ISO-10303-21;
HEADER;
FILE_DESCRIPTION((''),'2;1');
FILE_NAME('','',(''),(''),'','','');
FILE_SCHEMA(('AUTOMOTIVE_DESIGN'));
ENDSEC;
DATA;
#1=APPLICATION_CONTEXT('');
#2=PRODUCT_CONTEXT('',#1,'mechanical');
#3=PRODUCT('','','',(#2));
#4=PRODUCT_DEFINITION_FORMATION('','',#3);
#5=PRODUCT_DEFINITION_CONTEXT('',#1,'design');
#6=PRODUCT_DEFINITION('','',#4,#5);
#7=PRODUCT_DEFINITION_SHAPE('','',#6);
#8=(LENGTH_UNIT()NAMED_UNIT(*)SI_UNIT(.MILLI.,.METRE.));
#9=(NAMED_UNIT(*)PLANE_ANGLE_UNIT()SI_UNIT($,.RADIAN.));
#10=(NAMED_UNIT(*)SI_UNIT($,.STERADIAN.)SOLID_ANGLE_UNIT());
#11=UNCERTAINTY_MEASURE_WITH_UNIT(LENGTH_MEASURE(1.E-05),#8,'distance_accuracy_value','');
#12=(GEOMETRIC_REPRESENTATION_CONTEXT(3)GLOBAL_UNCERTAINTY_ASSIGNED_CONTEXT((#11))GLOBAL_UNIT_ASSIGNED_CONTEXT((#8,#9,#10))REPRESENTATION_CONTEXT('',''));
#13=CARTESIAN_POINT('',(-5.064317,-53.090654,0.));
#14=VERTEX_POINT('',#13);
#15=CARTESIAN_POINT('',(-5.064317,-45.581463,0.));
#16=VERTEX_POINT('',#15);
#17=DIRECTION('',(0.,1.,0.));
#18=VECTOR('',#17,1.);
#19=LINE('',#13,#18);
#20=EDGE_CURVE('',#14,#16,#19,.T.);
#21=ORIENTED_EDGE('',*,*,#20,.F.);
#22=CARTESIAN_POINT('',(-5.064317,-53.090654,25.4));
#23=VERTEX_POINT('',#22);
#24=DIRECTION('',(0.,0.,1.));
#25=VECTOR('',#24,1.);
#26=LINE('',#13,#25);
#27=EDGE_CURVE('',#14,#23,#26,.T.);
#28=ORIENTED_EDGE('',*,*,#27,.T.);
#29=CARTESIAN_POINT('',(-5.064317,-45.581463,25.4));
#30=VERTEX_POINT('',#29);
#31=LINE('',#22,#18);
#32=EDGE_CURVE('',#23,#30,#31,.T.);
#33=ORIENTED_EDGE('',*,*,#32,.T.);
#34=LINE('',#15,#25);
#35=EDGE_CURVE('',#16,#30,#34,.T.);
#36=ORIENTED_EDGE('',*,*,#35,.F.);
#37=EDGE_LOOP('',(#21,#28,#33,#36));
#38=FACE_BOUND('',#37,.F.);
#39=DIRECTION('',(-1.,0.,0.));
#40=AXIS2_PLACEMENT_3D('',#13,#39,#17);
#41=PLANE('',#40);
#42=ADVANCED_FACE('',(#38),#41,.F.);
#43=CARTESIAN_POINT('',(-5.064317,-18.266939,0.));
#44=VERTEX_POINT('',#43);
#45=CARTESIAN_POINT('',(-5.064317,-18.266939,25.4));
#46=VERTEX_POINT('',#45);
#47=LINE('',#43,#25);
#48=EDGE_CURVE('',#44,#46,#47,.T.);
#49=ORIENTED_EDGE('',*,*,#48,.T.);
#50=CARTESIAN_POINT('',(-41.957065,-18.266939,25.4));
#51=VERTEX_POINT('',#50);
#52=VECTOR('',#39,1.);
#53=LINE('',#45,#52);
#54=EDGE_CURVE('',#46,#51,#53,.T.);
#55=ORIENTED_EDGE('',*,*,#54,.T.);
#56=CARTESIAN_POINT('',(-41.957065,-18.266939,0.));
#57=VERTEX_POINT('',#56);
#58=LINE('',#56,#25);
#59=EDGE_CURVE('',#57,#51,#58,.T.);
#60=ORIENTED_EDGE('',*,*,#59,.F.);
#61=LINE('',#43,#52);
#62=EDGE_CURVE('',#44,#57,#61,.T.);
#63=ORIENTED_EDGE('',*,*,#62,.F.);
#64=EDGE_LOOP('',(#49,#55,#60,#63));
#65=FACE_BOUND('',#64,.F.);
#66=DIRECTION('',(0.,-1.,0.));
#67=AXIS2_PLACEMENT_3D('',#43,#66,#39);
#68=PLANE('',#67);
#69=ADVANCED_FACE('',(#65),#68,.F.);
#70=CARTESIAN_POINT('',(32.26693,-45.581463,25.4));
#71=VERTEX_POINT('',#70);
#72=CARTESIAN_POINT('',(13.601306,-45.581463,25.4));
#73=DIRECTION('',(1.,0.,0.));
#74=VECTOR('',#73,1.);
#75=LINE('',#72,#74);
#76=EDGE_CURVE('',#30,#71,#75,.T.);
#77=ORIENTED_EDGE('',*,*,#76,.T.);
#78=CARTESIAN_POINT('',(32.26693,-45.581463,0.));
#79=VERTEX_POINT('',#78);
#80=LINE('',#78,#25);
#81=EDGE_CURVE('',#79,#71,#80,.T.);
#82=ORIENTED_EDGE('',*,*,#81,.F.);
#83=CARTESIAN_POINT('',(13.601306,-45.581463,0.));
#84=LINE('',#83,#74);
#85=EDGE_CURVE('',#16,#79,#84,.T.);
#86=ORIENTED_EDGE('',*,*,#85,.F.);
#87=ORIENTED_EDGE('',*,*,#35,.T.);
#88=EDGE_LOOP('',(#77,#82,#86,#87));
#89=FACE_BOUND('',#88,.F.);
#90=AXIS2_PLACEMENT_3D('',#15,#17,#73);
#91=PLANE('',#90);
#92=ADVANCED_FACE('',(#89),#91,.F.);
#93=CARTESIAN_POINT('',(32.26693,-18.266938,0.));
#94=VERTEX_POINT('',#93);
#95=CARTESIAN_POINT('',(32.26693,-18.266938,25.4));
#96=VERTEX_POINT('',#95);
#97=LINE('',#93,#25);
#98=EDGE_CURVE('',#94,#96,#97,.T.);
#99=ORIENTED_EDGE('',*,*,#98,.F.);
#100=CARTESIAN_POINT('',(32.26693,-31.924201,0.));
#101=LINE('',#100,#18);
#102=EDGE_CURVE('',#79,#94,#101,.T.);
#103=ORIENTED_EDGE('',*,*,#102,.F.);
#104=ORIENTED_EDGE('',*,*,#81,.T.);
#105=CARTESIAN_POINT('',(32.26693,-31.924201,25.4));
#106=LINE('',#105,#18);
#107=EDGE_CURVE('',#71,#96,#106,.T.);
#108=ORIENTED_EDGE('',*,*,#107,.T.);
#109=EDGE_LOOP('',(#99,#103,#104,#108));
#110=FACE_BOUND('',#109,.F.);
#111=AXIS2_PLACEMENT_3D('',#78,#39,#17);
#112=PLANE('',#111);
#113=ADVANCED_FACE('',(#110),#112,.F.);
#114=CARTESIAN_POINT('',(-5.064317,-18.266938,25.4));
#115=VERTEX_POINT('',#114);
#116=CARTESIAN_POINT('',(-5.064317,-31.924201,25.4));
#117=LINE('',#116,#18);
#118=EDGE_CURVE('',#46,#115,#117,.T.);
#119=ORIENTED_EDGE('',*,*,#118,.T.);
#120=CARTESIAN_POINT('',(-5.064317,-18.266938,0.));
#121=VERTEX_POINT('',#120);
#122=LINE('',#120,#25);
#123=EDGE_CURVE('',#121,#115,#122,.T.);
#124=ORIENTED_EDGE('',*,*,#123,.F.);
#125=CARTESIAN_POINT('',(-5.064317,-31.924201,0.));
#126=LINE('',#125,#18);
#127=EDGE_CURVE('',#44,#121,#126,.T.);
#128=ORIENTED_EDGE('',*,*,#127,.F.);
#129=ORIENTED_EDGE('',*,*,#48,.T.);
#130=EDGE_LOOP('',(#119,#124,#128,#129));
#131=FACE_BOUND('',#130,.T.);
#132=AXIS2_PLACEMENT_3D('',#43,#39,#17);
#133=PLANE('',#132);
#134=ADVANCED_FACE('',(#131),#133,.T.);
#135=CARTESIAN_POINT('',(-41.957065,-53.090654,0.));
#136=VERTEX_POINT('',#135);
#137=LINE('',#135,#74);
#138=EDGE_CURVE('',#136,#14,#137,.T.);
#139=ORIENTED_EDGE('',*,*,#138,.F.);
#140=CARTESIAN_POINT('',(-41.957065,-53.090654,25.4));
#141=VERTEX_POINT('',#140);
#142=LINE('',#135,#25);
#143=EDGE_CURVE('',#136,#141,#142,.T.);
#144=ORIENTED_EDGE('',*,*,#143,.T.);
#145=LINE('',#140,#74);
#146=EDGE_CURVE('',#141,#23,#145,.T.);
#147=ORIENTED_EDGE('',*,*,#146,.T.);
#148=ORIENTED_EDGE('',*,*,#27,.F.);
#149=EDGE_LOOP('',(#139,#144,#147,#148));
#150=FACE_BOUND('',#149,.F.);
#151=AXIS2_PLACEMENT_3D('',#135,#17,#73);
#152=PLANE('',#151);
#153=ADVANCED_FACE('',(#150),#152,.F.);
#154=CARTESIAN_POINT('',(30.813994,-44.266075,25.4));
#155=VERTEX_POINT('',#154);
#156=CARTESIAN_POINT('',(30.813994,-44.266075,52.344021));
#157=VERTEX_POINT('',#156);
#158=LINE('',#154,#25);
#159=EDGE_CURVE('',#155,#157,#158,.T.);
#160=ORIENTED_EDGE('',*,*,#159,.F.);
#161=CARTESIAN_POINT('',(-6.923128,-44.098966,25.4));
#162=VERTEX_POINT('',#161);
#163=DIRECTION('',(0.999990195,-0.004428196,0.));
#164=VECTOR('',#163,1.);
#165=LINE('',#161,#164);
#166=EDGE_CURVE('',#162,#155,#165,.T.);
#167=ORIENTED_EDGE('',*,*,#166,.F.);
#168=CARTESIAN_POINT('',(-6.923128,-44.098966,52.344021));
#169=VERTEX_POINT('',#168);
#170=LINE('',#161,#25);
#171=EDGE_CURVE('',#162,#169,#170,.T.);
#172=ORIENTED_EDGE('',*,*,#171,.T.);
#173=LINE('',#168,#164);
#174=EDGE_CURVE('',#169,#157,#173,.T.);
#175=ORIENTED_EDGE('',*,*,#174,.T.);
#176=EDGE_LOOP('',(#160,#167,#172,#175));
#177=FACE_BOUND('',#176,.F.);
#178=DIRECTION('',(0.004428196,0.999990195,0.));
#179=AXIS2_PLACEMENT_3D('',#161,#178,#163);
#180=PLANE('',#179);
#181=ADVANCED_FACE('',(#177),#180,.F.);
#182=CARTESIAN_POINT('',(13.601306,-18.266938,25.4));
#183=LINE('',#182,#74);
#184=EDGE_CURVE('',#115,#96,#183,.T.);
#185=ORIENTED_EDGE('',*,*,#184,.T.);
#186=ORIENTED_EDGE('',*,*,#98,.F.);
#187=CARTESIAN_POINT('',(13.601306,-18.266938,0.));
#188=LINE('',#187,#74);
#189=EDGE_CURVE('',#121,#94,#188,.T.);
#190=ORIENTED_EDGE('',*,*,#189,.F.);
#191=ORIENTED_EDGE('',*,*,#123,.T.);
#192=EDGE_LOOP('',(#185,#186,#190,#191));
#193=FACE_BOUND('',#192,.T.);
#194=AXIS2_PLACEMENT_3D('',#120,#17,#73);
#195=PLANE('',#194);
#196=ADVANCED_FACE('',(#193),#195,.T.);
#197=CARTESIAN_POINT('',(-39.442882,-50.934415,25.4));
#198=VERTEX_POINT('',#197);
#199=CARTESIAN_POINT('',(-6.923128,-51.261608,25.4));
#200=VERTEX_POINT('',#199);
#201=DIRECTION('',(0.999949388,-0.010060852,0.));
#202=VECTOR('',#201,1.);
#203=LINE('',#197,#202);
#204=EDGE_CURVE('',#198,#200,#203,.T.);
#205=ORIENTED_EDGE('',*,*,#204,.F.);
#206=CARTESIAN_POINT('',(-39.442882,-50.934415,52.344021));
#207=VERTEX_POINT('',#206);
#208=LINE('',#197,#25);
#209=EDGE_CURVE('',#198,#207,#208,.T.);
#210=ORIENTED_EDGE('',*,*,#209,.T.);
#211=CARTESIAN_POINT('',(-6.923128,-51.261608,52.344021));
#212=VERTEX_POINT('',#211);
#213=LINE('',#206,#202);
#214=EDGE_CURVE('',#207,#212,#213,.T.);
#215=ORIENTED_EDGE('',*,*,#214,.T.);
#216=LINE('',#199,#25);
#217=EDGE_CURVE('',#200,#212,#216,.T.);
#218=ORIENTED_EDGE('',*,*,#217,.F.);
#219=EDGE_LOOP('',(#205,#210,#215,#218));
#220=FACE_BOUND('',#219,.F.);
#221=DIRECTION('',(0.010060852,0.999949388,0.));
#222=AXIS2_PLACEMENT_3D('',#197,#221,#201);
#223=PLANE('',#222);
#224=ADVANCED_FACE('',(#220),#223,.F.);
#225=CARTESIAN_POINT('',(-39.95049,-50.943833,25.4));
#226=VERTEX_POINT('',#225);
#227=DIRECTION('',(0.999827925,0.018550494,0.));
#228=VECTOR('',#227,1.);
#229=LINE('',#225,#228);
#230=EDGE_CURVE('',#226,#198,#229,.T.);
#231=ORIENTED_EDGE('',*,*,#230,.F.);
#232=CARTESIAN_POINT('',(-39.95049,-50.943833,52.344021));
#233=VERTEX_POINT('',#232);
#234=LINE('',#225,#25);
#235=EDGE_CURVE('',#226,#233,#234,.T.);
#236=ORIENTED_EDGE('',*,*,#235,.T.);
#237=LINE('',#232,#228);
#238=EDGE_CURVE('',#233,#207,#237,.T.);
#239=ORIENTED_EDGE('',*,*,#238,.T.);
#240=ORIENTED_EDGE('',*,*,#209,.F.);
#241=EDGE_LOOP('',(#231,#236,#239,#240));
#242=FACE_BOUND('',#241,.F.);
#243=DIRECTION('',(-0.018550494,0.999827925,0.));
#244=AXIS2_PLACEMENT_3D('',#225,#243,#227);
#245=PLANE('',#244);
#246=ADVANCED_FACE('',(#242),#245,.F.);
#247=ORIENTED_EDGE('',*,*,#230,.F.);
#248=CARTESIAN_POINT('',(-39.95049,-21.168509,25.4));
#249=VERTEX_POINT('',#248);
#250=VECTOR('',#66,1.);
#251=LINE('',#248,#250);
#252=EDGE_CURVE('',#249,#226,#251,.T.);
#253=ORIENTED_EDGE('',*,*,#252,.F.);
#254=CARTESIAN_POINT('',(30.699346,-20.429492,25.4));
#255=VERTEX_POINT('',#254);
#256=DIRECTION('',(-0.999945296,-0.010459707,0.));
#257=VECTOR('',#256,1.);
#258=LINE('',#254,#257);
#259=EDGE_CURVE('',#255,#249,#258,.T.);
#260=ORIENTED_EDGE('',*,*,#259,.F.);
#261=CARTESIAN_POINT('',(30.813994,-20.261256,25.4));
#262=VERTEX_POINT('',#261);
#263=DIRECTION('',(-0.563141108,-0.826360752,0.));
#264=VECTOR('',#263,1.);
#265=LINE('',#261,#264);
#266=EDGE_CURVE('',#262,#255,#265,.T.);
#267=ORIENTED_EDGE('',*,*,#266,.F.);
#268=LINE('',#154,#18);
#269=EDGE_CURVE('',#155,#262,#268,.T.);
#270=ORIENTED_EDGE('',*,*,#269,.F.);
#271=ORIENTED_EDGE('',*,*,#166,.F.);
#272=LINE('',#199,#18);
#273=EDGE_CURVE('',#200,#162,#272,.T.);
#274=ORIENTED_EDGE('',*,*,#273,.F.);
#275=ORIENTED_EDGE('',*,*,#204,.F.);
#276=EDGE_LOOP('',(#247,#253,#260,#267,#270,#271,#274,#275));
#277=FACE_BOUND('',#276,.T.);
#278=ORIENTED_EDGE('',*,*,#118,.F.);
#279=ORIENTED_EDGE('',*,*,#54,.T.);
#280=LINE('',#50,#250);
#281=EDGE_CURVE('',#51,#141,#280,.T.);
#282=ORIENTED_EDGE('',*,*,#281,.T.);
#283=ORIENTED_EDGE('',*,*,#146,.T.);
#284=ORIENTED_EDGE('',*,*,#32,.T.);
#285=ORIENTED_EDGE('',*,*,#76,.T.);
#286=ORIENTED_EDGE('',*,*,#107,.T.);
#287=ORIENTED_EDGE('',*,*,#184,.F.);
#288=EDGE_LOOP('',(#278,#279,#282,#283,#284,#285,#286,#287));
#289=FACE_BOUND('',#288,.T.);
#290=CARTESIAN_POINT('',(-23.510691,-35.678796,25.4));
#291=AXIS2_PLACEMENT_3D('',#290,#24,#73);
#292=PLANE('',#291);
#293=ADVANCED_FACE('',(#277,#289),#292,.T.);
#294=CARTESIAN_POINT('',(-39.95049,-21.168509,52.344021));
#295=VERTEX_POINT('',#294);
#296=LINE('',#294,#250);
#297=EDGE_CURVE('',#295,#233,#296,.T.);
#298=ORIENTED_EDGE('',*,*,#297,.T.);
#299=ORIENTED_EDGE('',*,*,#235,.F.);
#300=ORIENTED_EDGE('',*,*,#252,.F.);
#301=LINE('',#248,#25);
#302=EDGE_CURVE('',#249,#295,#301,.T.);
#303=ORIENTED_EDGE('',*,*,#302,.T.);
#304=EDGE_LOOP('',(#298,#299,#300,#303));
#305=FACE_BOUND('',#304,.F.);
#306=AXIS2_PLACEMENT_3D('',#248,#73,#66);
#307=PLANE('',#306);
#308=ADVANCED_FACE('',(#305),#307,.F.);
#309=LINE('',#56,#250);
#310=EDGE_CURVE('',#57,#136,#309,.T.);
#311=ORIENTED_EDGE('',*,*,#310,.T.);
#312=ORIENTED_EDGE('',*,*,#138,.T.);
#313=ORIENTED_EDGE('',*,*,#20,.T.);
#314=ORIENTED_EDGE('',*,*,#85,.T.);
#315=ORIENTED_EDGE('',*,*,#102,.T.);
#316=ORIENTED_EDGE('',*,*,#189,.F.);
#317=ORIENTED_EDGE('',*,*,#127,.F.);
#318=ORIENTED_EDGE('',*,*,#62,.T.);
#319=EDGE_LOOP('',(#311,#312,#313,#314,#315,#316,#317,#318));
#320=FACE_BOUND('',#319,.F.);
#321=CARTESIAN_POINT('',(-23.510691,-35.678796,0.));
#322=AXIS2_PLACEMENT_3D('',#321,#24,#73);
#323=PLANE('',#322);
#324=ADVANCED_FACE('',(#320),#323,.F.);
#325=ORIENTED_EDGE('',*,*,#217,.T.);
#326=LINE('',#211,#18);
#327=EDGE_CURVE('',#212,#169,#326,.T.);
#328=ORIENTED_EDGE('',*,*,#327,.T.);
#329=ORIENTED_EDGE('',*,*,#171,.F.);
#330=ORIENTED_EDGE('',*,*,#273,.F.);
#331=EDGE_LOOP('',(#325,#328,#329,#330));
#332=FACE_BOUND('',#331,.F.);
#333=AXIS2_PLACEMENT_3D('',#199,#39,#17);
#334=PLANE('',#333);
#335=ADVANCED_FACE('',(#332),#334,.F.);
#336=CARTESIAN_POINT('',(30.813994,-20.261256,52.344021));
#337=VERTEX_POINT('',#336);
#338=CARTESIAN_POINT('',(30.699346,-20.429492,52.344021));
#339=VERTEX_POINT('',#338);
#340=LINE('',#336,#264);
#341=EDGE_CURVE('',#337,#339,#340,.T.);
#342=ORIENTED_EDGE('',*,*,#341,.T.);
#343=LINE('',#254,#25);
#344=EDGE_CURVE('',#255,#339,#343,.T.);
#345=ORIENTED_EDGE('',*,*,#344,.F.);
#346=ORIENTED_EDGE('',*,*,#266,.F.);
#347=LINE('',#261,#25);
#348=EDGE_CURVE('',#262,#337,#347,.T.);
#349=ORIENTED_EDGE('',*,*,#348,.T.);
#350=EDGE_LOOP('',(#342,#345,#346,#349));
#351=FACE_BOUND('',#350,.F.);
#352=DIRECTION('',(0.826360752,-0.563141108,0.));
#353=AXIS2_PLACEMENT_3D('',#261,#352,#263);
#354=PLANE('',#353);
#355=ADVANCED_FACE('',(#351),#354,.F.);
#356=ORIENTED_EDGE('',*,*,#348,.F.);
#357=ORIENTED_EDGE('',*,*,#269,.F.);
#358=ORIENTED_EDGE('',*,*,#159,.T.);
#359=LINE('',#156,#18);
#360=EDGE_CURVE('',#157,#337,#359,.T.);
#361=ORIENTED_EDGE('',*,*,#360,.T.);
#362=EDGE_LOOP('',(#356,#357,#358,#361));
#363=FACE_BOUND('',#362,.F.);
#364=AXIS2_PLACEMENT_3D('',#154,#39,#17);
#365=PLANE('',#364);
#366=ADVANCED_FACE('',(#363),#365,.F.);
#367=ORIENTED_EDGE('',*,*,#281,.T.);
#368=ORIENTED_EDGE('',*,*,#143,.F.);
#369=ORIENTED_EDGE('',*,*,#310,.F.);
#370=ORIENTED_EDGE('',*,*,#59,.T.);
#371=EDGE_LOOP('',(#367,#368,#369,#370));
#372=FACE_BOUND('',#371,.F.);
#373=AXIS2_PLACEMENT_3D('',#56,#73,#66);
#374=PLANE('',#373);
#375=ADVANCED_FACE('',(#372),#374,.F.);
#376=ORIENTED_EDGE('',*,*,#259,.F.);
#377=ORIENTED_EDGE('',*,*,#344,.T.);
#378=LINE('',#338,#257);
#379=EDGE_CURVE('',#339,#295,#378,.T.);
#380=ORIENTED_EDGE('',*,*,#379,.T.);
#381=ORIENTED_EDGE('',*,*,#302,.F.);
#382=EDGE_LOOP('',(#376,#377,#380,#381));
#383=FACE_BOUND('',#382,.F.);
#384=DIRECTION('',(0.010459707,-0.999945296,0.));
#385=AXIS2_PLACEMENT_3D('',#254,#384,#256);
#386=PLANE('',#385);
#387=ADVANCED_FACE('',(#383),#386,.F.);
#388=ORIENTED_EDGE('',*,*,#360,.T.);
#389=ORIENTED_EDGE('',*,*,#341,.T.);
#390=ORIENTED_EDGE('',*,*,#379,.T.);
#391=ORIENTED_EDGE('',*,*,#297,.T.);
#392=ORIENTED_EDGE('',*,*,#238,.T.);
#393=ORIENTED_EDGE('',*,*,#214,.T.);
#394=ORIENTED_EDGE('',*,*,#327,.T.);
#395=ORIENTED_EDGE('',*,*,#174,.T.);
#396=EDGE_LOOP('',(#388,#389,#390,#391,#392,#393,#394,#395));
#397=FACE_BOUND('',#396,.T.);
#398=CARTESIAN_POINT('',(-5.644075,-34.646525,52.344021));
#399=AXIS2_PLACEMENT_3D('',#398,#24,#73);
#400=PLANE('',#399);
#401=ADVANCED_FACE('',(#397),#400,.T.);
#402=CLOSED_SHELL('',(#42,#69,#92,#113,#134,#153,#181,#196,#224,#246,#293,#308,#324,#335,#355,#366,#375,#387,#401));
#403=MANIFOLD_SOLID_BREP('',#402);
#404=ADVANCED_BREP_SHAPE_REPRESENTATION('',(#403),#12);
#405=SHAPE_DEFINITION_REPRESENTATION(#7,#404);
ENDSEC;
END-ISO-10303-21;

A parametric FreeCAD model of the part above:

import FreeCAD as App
import Part
import Sketcher
from FreeCAD import Vector
Q = App.Units.Quantity


def add_polygon(sketch, points):
    """Adds a closed chain of lines whose ends are joined by coincident constraints."""
    first, n = sketch.GeometryCount, len(points)
    for a, b in zip(points, points[1:] + points[:1]):
        sketch.addGeometry(Part.LineSegment(App.Vector(*a, 0), App.Vector(*b, 0)), False)
    for i in range(n):
        sketch.addConstraint(Sketcher.Constraint("Coincident", first + i, 2, first + (i + 1) % n, 1))

doc = App.newDocument("Part")
body = doc.addObject("PartDesign::Body", "Body")

sketch1 = body.newObject("Sketcher::SketchObject", "Sketch")
sketch1.AttachmentSupport = (doc.getObject("XY_Plane"), [""])
sketch1.MapMode = "FlatFace"
sketch1.addGeometry(Part.LineSegment(Vector(-5.064317, -18.266939, 0), Vector(-5.064317, -18.266938, 0)), False)
sketch1.addGeometry(Part.LineSegment(Vector(-5.064317, -18.266939, 0), Vector(-41.957065, -18.266939, 0)), False)
sketch1.addGeometry(Part.LineSegment(Vector(-41.957065, -18.266939, 0), Vector(-41.957065, -53.090654, 0)), False)
sketch1.addGeometry(Part.LineSegment(Vector(-41.957065, -53.090654, 0), Vector(-5.064317, -53.090654, 0)), False)
sketch1.addGeometry(Part.LineSegment(Vector(-5.064317, -53.090654, 0), Vector(-5.064317, -45.581463, 0)), False)
sketch1.addGeometry(Part.LineSegment(Vector(-5.064317, -45.581463, 0), Vector(32.26693, -45.581463, 0)), False)
sketch1.addGeometry(Part.LineSegment(Vector(32.26693, -45.581463, 0), Vector(32.26693, -18.266938, 0)), False)
sketch1.addGeometry(Part.LineSegment(Vector(32.26693, -18.266938, 0), Vector(-5.064317, -18.266938, 0)), False)
sketch1.addConstraint(Sketcher.Constraint("Coincident", 0, 1, 1, 1))
sketch1.addConstraint(Sketcher.Constraint("Coincident", 1, 2, 2, 1))
sketch1.addConstraint(Sketcher.Constraint("Coincident", 2, 2, 3, 1))
sketch1.addConstraint(Sketcher.Constraint("Coincident", 3, 2, 4, 1))
sketch1.addConstraint(Sketcher.Constraint("Coincident", 4, 2, 5, 1))
sketch1.addConstraint(Sketcher.Constraint("Coincident", 5, 2, 6, 1))
sketch1.addConstraint(Sketcher.Constraint("Coincident", 6, 2, 7, 1))
sketch1.addConstraint(Sketcher.Constraint("Coincident", 7, 2, 0, 2))
sketch1.addConstraint(Sketcher.Constraint("Horizontal", 0))
sketch1.addConstraint(Sketcher.Constraint("Horizontal", 1))
sketch1.addConstraint(Sketcher.Constraint("Vertical", 2))
sketch1.addConstraint(Sketcher.Constraint("Horizontal", 3))
sketch1.addConstraint(Sketcher.Constraint("Vertical", 4))
sketch1.addConstraint(Sketcher.Constraint("Horizontal", 5))
sketch1.addConstraint(Sketcher.Constraint("Vertical", 6))
sketch1.addConstraint(Sketcher.Constraint("Horizontal", 7))
sketch1.addConstraint(Sketcher.Constraint("DistanceY", 4, 1, 4, 2, 7.509191))
sketch1.addConstraint(Sketcher.Constraint("DistanceX", 1, 2, 1, 1, 36.892747))
sketch1.addConstraint(Sketcher.Constraint("DistanceX", 3, 1, 3, 2, 36.892748))
sketch1.addConstraint(Sketcher.Constraint("DistanceX", 5, 1, 5, 2, 37.331247))
sketch1.addConstraint(Sketcher.Constraint("DistanceX", 7, 2, 7, 1, 37.331247))
sketch1.addConstraint(Sketcher.Constraint("DistanceY", 2, 2, 2, 1, 34.823715))
sketch1.addConstraint(Sketcher.Constraint("DistanceY", 0, 1, -1, 1, 18.266939))
sketch1.addConstraint(Sketcher.Constraint("DistanceX", -1, 1, 5, 2, 32.26693))
pad1 = body.newObject("PartDesign::Pad", "Pad")
pad1.Profile = sketch1
pad1.Length = Q("1 in")

sketch2 = body.newObject("Sketcher::SketchObject", "Sketch001")
sketch2.AttachmentSupport = (doc.getObject("XY_Plane"), [""])
sketch2.MapMode = "FlatFace"
sketch2.AttachmentOffset = App.Placement(Vector(0, 0, 1 * 25.4), App.Rotation())
add_polygon(sketch2, [(30.7, -20.43), (-39.95, -21.17), (-39.95, -50.94), (-39.44, -50.93), (-6.92, -51.26), (-6.92, -44.1), (30.81, -44.27), (30.81, -20.26)])
sketch2.addConstraint(Sketcher.Constraint("Vertical", 1))
sketch2.addConstraint(Sketcher.Constraint("Vertical", 4))
sketch2.addConstraint(Sketcher.Constraint("Vertical", 6))
sketch2.addConstraint(Sketcher.Constraint("Distance", 0, 70.653701))
sketch2.addConstraint(Sketcher.Constraint("Distance", 3, 32.5214))
sketch2.addConstraint(Sketcher.Constraint("DistanceY", 6, 1, 6, 2, 24.004819))
sketch2.addConstraint(Sketcher.Constraint("DistanceY", 3, 2, 0, 2, 30.093099))
sketch2.addConstraint(Sketcher.Constraint("Distance", 5, 37.737492))
sketch2.addConstraint(Sketcher.Constraint("DistanceY", 1, 2, 1, 1, 29.775324))
sketch2.addConstraint(Sketcher.Constraint("DistanceY", 4, 1, 4, 2, 7.162642))
sketch2.addConstraint(Sketcher.Constraint("DistanceX", 0, 2, -1, 1, 39.95049))
sketch2.addConstraint(Sketcher.Constraint("DistanceY", 0, 2, -1, 1, 21.168509))
sketch2.addConstraint(Sketcher.Constraint("DistanceX", 2, 2, -1, 1, 39.442882))
sketch2.addConstraint(Sketcher.Constraint("DistanceX", 3, 2, -1, 1, 6.923128))
sketch2.addConstraint(Sketcher.Constraint("DistanceY", 7, 2, -1, 1, 20.429492))
sketch2.addConstraint(Sketcher.Constraint("DistanceY", 5, 2, 4, 2, 0.167109))
pad2 = body.newObject("PartDesign::Pad", "Pad001")
pad2.Profile = sketch2
pad2.Length = 26.944021

doc.recompute()
